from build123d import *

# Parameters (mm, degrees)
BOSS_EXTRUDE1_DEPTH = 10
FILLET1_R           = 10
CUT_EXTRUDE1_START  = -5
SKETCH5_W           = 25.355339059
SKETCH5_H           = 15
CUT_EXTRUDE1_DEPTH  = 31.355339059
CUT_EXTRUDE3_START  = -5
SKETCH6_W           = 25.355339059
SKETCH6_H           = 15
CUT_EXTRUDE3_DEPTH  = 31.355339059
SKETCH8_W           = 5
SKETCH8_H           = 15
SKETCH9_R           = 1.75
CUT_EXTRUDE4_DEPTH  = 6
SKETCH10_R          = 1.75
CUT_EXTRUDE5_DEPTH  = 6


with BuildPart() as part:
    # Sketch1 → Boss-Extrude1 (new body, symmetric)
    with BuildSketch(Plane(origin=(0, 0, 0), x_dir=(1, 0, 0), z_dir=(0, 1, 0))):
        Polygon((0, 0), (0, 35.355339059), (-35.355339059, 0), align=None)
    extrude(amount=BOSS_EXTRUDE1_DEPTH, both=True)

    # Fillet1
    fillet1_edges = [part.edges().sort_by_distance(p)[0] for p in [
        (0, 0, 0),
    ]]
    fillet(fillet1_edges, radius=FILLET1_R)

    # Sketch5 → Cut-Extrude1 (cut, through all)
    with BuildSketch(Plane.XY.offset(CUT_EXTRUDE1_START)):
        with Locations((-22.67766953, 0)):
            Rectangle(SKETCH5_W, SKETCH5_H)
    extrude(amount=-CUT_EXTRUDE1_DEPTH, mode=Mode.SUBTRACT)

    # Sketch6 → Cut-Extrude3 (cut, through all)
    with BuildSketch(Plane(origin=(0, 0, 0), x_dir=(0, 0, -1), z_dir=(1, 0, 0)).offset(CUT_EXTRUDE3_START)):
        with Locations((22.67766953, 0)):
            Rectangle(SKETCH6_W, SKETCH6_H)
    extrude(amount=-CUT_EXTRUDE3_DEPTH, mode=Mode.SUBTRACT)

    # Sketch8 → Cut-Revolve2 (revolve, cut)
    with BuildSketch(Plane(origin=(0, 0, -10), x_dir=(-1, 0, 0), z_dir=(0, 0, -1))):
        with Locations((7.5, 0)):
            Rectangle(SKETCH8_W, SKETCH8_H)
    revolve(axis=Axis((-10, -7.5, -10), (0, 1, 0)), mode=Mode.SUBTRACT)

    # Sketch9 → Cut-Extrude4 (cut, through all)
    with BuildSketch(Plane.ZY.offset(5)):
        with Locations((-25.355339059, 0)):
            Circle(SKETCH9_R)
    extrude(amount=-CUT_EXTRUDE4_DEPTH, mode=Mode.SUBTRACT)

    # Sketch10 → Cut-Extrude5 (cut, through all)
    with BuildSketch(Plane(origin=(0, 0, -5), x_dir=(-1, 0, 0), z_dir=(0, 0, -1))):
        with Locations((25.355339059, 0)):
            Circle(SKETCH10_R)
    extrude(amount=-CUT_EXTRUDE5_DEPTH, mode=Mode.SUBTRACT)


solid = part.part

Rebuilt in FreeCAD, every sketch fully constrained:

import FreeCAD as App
import Part
import Sketcher
Q = App.Units.Quantity


def edges_at(feature, points):
    """Names of the edges that pass closest to the given points."""
    edges = feature.Shape.Edges
    near = lambda p: min(range(len(edges)), key=lambda i: edges[i].distToShape(Part.Vertex(*p))[0])
    return sorted({f"Edge{near(p) + 1}" for p in points})

doc = App.newDocument("Part")
body = doc.addObject("PartDesign::Body", "Body")

# Sketch on XZ plane
sketch1 = body.newObject("Sketcher::SketchObject", "Sketch")
sketch1.AttachmentSupport = (doc.getObject("XZ_Plane"), [""])
sketch1.MapMode = "FlatFace"
sketch1.addGeometry(Part.LineSegment(App.Vector(0, 0, 0), App.Vector(0, -35, 0)), False)
sketch1.addGeometry(Part.LineSegment(App.Vector(0, -35, 0), App.Vector(-35, 0, 0)), False)
sketch1.addGeometry(Part.LineSegment(App.Vector(-35, 0, 0), App.Vector(0, 0, 0)), False)
sketch1.addConstraint(Sketcher.Constraint("Coincident", 0, 2, 1, 1))
sketch1.addConstraint(Sketcher.Constraint("Coincident", 1, 2, 2, 1))
sketch1.addConstraint(Sketcher.Constraint("Coincident", 2, 2, 0, 1))
sketch1.addConstraint(Sketcher.Constraint("Vertical", 0))
sketch1.addConstraint(Sketcher.Constraint("Horizontal", 2))
sketch1.addConstraint(Sketcher.Constraint("Coincident", 2, 2, -1, 1))
sketch1.addConstraint(Sketcher.Constraint("Equal", 2, 0))
sketch1.addConstraint(Sketcher.Constraint("Distance", 1, Q("50 mm")))
pad1 = body.newObject("PartDesign::Pad", "Pad")
pad1.Profile = sketch1
pad1.Length = 20
pad1.Midplane = True
doc.recompute()

fillet = body.newObject("PartDesign::Fillet", "Fillet")
fillet.Base = (pad1, edges_at(pad1, [(0, 0, 0)]))
fillet.Radius = 10

# Sketch on XY plane
sketch2 = body.newObject("Sketcher::SketchObject", "Sketch001")
sketch2.AttachmentSupport = (doc.getObject("XY_Plane"), [""])
sketch2.MapMode = "FlatFace"
sketch2.AttachmentOffset = App.Placement(App.Vector(0, 0, -5), App.Rotation())
sketch2.addGeometry(Part.LineSegment(App.Vector(-35, 8, 0), App.Vector(-35, -8, 0)), False)
sketch2.addGeometry(Part.LineSegment(App.Vector(-35, -8, 0), App.Vector(-10, -8, 0)), False)
sketch2.addGeometry(Part.LineSegment(App.Vector(-10, -8, 0), App.Vector(-10, 8, 0)), False)
sketch2.addGeometry(Part.LineSegment(App.Vector(-10, 8, 0), App.Vector(-35, 8, 0)), False)
sketch2.addConstraint(Sketcher.Constraint("Coincident", 0, 2, 1, 1))
sketch2.addConstraint(Sketcher.Constraint("Coincident", 1, 2, 2, 1))
sketch2.addConstraint(Sketcher.Constraint("Coincident", 2, 2, 3, 1))
sketch2.addConstraint(Sketcher.Constraint("Coincident", 3, 2, 0, 1))
sketch2.addConstraint(Sketcher.Constraint("Vertical", 0))
sketch2.addConstraint(Sketcher.Constraint("Horizontal", 1))
sketch2.addConstraint(Sketcher.Constraint("Vertical", 2))
sketch2.addConstraint(Sketcher.Constraint("Horizontal", 3))
sketch2.addConstraint(Sketcher.Constraint("DistanceY", 0, 2, 0, 1, Q("15 mm")))
sketch2.addConstraint(Sketcher.Constraint("DistanceX", 1, 2, -1, 1, Q("10 mm")))
sketch2.addConstraint(Sketcher.Constraint("DistanceY", 0, 2, -1, 1, Q("7.5 mm")))
sketch2.addConstraint(Sketcher.Constraint("DistanceX", 1, 1, 1, 2, Q("25.355339 mm")))
pocket1 = body.newObject("PartDesign::Pocket", "Pocket")
pocket1.Profile = sketch2
pocket1.Type = "ThroughAll"

# Sketch on YZ plane
sketch3 = body.newObject("Sketcher::SketchObject", "Sketch002")
sketch3.AttachmentSupport = (doc.getObject("YZ_Plane"), [""])
sketch3.MapMode = "FlatFace"
sketch3.AttachmentOffset = App.Placement(App.Vector(0, 0, -5), App.Rotation())
sketch3.addGeometry(Part.LineSegment(App.Vector(8, -10, 0), App.Vector(-8, -10, 0)), False)
sketch3.addGeometry(Part.LineSegment(App.Vector(-8, -10, 0), App.Vector(-8, -35, 0)), False)
sketch3.addGeometry(Part.LineSegment(App.Vector(-8, -35, 0), App.Vector(8, -35, 0)), False)
sketch3.addGeometry(Part.LineSegment(App.Vector(8, -35, 0), App.Vector(8, -10, 0)), False)
sketch3.addConstraint(Sketcher.Constraint("Coincident", 0, 2, 1, 1))
sketch3.addConstraint(Sketcher.Constraint("Coincident", 1, 2, 2, 1))
sketch3.addConstraint(Sketcher.Constraint("Coincident", 2, 2, 3, 1))
sketch3.addConstraint(Sketcher.Constraint("Coincident", 3, 2, 0, 1))
sketch3.addConstraint(Sketcher.Constraint("Horizontal", 0))
sketch3.addConstraint(Sketcher.Constraint("Vertical", 1))
sketch3.addConstraint(Sketcher.Constraint("Horizontal", 2))
sketch3.addConstraint(Sketcher.Constraint("Vertical", 3))
sketch3.addConstraint(Sketcher.Constraint("DistanceX", 0, 2, 0, 1, Q("15 mm")))
sketch3.addConstraint(Sketcher.Constraint("DistanceY", 0, 2, -1, 1, Q("10 mm")))
sketch3.addConstraint(Sketcher.Constraint("DistanceX", 0, 2, -1, 1, Q("7.5 mm")))
sketch3.addConstraint(Sketcher.Constraint("DistanceY", 1, 2, 1, 1, Q("25.355339 mm")))
pocket2 = body.newObject("PartDesign::Pocket", "Pocket001")
pocket2.Profile = sketch3
pocket2.Type = "ThroughAll"

# Sketch on XY plane
sketch4 = body.newObject("Sketcher::SketchObject", "Sketch003")
sketch4.AttachmentSupport = (doc.getObject("XY_Plane"), [""])
sketch4.MapMode = "FlatFace"
sketch4.AttachmentOffset = App.Placement(App.Vector(0, 0, -10), App.Rotation())
sketch4.addGeometry(Part.LineSegment(App.Vector(-5, 8, 0), App.Vector(-5, -8, 0)), False)
sketch4.addGeometry(Part.LineSegment(App.Vector(-5, -8, 0), App.Vector(-10, -8, 0)), False)
sketch4.addGeometry(Part.LineSegment(App.Vector(-10, -8, 0), App.Vector(-10, 8, 0)), False)
sketch4.addGeometry(Part.LineSegment(App.Vector(-10, 8, 0), App.Vector(-5, 8, 0)), False)
sketch4.addGeometry(Part.LineSegment(App.Vector(-10, -8, 0), App.Vector(-10, 8, 0)), True)  # axis
sketch4.addConstraint(Sketcher.Constraint("Coincident", 0, 2, 1, 1))
sketch4.addConstraint(Sketcher.Constraint("Coincident", 1, 2, 2, 1))
sketch4.addConstraint(Sketcher.Constraint("Coincident", 2, 2, 3, 1))
sketch4.addConstraint(Sketcher.Constraint("Coincident", 3, 2, 0, 1))
sketch4.addConstraint(Sketcher.Constraint("Vertical", 0))
sketch4.addConstraint(Sketcher.Constraint("Horizontal", 1))
sketch4.addConstraint(Sketcher.Constraint("Vertical", 2))
sketch4.addConstraint(Sketcher.Constraint("Horizontal", 3))
sketch4.addConstraint(Sketcher.Constraint("Vertical", 4))
sketch4.addConstraint(Sketcher.Constraint("Coincident", 4, 1, 1, 2))
sketch4.addConstraint(Sketcher.Constraint("Horizontal", 3, 2, 4, 2))
sketch4.addConstraint(Sketcher.Constraint("DistanceX", 1, 2, 1, 1, Q("5 mm")))
sketch4.addConstraint(Sketcher.Constraint("DistanceY", 0, 2, 0, 1, Q("15 mm")))
sketch4.addConstraint(Sketcher.Constraint("DistanceX", 0, 2, -1, 1, Q("5 mm")))
sketch4.addConstraint(Sketcher.Constraint("DistanceY", 0, 2, -1, 1, Q("7.5 mm")))
groove = body.newObject("PartDesign::Groove", "Groove")
groove.Profile = sketch4
groove.ReferenceAxis = (sketch4, ["Axis0"])
groove.Angle = 360

# Sketch on YZ plane
sketch5 = body.newObject("Sketcher::SketchObject", "Sketch004")
sketch5.AttachmentSupport = (doc.getObject("YZ_Plane"), [""])
sketch5.MapMode = "FlatFace"
sketch5.AttachmentOffset = App.Placement(App.Vector(0, 0, -5), App.Rotation())
sketch5.addGeometry(Part.Circle(App.Vector(0, -25.4, 0), App.Vector(0, 0, 1), 1.8), False)
sketch5.addConstraint(Sketcher.Constraint("PointOnObject", 0, 3, -2))
sketch5.addConstraint(Sketcher.Constraint("Diameter", 0, Q("3.5 mm")))
sketch5.addConstraint(Sketcher.Constraint("DistanceY", 0, 3, -1, 1, Q("25.355339 mm")))
pocket3 = body.newObject("PartDesign::Pocket", "Pocket002")
pocket3.Profile = sketch5
pocket3.Type = "ThroughAll"
pocket3.Reversed = True

# Sketch on XY plane
sketch6 = body.newObject("Sketcher::SketchObject", "Sketch005")
sketch6.AttachmentSupport = (doc.getObject("XY_Plane"), [""])
sketch6.MapMode = "FlatFace"
sketch6.AttachmentOffset = App.Placement(App.Vector(0, 0, -5), App.Rotation())
sketch6.addGeometry(Part.Circle(App.Vector(-25.4, 0, 0), App.Vector(0, 0, 1), 1.8), False)
sketch6.addConstraint(Sketcher.Constraint("PointOnObject", 0, 3, -1))
sketch6.addConstraint(Sketcher.Constraint("Diameter", 0, Q("3.5 mm")))
sketch6.addConstraint(Sketcher.Constraint("DistanceX", 0, 3, -1, 1, Q("25.355339 mm")))
pocket4 = body.newObject("PartDesign::Pocket", "Pocket003")
pocket4.Profile = sketch6
pocket4.Type = "ThroughAll"
pocket4.Reversed = True

doc.recompute()
